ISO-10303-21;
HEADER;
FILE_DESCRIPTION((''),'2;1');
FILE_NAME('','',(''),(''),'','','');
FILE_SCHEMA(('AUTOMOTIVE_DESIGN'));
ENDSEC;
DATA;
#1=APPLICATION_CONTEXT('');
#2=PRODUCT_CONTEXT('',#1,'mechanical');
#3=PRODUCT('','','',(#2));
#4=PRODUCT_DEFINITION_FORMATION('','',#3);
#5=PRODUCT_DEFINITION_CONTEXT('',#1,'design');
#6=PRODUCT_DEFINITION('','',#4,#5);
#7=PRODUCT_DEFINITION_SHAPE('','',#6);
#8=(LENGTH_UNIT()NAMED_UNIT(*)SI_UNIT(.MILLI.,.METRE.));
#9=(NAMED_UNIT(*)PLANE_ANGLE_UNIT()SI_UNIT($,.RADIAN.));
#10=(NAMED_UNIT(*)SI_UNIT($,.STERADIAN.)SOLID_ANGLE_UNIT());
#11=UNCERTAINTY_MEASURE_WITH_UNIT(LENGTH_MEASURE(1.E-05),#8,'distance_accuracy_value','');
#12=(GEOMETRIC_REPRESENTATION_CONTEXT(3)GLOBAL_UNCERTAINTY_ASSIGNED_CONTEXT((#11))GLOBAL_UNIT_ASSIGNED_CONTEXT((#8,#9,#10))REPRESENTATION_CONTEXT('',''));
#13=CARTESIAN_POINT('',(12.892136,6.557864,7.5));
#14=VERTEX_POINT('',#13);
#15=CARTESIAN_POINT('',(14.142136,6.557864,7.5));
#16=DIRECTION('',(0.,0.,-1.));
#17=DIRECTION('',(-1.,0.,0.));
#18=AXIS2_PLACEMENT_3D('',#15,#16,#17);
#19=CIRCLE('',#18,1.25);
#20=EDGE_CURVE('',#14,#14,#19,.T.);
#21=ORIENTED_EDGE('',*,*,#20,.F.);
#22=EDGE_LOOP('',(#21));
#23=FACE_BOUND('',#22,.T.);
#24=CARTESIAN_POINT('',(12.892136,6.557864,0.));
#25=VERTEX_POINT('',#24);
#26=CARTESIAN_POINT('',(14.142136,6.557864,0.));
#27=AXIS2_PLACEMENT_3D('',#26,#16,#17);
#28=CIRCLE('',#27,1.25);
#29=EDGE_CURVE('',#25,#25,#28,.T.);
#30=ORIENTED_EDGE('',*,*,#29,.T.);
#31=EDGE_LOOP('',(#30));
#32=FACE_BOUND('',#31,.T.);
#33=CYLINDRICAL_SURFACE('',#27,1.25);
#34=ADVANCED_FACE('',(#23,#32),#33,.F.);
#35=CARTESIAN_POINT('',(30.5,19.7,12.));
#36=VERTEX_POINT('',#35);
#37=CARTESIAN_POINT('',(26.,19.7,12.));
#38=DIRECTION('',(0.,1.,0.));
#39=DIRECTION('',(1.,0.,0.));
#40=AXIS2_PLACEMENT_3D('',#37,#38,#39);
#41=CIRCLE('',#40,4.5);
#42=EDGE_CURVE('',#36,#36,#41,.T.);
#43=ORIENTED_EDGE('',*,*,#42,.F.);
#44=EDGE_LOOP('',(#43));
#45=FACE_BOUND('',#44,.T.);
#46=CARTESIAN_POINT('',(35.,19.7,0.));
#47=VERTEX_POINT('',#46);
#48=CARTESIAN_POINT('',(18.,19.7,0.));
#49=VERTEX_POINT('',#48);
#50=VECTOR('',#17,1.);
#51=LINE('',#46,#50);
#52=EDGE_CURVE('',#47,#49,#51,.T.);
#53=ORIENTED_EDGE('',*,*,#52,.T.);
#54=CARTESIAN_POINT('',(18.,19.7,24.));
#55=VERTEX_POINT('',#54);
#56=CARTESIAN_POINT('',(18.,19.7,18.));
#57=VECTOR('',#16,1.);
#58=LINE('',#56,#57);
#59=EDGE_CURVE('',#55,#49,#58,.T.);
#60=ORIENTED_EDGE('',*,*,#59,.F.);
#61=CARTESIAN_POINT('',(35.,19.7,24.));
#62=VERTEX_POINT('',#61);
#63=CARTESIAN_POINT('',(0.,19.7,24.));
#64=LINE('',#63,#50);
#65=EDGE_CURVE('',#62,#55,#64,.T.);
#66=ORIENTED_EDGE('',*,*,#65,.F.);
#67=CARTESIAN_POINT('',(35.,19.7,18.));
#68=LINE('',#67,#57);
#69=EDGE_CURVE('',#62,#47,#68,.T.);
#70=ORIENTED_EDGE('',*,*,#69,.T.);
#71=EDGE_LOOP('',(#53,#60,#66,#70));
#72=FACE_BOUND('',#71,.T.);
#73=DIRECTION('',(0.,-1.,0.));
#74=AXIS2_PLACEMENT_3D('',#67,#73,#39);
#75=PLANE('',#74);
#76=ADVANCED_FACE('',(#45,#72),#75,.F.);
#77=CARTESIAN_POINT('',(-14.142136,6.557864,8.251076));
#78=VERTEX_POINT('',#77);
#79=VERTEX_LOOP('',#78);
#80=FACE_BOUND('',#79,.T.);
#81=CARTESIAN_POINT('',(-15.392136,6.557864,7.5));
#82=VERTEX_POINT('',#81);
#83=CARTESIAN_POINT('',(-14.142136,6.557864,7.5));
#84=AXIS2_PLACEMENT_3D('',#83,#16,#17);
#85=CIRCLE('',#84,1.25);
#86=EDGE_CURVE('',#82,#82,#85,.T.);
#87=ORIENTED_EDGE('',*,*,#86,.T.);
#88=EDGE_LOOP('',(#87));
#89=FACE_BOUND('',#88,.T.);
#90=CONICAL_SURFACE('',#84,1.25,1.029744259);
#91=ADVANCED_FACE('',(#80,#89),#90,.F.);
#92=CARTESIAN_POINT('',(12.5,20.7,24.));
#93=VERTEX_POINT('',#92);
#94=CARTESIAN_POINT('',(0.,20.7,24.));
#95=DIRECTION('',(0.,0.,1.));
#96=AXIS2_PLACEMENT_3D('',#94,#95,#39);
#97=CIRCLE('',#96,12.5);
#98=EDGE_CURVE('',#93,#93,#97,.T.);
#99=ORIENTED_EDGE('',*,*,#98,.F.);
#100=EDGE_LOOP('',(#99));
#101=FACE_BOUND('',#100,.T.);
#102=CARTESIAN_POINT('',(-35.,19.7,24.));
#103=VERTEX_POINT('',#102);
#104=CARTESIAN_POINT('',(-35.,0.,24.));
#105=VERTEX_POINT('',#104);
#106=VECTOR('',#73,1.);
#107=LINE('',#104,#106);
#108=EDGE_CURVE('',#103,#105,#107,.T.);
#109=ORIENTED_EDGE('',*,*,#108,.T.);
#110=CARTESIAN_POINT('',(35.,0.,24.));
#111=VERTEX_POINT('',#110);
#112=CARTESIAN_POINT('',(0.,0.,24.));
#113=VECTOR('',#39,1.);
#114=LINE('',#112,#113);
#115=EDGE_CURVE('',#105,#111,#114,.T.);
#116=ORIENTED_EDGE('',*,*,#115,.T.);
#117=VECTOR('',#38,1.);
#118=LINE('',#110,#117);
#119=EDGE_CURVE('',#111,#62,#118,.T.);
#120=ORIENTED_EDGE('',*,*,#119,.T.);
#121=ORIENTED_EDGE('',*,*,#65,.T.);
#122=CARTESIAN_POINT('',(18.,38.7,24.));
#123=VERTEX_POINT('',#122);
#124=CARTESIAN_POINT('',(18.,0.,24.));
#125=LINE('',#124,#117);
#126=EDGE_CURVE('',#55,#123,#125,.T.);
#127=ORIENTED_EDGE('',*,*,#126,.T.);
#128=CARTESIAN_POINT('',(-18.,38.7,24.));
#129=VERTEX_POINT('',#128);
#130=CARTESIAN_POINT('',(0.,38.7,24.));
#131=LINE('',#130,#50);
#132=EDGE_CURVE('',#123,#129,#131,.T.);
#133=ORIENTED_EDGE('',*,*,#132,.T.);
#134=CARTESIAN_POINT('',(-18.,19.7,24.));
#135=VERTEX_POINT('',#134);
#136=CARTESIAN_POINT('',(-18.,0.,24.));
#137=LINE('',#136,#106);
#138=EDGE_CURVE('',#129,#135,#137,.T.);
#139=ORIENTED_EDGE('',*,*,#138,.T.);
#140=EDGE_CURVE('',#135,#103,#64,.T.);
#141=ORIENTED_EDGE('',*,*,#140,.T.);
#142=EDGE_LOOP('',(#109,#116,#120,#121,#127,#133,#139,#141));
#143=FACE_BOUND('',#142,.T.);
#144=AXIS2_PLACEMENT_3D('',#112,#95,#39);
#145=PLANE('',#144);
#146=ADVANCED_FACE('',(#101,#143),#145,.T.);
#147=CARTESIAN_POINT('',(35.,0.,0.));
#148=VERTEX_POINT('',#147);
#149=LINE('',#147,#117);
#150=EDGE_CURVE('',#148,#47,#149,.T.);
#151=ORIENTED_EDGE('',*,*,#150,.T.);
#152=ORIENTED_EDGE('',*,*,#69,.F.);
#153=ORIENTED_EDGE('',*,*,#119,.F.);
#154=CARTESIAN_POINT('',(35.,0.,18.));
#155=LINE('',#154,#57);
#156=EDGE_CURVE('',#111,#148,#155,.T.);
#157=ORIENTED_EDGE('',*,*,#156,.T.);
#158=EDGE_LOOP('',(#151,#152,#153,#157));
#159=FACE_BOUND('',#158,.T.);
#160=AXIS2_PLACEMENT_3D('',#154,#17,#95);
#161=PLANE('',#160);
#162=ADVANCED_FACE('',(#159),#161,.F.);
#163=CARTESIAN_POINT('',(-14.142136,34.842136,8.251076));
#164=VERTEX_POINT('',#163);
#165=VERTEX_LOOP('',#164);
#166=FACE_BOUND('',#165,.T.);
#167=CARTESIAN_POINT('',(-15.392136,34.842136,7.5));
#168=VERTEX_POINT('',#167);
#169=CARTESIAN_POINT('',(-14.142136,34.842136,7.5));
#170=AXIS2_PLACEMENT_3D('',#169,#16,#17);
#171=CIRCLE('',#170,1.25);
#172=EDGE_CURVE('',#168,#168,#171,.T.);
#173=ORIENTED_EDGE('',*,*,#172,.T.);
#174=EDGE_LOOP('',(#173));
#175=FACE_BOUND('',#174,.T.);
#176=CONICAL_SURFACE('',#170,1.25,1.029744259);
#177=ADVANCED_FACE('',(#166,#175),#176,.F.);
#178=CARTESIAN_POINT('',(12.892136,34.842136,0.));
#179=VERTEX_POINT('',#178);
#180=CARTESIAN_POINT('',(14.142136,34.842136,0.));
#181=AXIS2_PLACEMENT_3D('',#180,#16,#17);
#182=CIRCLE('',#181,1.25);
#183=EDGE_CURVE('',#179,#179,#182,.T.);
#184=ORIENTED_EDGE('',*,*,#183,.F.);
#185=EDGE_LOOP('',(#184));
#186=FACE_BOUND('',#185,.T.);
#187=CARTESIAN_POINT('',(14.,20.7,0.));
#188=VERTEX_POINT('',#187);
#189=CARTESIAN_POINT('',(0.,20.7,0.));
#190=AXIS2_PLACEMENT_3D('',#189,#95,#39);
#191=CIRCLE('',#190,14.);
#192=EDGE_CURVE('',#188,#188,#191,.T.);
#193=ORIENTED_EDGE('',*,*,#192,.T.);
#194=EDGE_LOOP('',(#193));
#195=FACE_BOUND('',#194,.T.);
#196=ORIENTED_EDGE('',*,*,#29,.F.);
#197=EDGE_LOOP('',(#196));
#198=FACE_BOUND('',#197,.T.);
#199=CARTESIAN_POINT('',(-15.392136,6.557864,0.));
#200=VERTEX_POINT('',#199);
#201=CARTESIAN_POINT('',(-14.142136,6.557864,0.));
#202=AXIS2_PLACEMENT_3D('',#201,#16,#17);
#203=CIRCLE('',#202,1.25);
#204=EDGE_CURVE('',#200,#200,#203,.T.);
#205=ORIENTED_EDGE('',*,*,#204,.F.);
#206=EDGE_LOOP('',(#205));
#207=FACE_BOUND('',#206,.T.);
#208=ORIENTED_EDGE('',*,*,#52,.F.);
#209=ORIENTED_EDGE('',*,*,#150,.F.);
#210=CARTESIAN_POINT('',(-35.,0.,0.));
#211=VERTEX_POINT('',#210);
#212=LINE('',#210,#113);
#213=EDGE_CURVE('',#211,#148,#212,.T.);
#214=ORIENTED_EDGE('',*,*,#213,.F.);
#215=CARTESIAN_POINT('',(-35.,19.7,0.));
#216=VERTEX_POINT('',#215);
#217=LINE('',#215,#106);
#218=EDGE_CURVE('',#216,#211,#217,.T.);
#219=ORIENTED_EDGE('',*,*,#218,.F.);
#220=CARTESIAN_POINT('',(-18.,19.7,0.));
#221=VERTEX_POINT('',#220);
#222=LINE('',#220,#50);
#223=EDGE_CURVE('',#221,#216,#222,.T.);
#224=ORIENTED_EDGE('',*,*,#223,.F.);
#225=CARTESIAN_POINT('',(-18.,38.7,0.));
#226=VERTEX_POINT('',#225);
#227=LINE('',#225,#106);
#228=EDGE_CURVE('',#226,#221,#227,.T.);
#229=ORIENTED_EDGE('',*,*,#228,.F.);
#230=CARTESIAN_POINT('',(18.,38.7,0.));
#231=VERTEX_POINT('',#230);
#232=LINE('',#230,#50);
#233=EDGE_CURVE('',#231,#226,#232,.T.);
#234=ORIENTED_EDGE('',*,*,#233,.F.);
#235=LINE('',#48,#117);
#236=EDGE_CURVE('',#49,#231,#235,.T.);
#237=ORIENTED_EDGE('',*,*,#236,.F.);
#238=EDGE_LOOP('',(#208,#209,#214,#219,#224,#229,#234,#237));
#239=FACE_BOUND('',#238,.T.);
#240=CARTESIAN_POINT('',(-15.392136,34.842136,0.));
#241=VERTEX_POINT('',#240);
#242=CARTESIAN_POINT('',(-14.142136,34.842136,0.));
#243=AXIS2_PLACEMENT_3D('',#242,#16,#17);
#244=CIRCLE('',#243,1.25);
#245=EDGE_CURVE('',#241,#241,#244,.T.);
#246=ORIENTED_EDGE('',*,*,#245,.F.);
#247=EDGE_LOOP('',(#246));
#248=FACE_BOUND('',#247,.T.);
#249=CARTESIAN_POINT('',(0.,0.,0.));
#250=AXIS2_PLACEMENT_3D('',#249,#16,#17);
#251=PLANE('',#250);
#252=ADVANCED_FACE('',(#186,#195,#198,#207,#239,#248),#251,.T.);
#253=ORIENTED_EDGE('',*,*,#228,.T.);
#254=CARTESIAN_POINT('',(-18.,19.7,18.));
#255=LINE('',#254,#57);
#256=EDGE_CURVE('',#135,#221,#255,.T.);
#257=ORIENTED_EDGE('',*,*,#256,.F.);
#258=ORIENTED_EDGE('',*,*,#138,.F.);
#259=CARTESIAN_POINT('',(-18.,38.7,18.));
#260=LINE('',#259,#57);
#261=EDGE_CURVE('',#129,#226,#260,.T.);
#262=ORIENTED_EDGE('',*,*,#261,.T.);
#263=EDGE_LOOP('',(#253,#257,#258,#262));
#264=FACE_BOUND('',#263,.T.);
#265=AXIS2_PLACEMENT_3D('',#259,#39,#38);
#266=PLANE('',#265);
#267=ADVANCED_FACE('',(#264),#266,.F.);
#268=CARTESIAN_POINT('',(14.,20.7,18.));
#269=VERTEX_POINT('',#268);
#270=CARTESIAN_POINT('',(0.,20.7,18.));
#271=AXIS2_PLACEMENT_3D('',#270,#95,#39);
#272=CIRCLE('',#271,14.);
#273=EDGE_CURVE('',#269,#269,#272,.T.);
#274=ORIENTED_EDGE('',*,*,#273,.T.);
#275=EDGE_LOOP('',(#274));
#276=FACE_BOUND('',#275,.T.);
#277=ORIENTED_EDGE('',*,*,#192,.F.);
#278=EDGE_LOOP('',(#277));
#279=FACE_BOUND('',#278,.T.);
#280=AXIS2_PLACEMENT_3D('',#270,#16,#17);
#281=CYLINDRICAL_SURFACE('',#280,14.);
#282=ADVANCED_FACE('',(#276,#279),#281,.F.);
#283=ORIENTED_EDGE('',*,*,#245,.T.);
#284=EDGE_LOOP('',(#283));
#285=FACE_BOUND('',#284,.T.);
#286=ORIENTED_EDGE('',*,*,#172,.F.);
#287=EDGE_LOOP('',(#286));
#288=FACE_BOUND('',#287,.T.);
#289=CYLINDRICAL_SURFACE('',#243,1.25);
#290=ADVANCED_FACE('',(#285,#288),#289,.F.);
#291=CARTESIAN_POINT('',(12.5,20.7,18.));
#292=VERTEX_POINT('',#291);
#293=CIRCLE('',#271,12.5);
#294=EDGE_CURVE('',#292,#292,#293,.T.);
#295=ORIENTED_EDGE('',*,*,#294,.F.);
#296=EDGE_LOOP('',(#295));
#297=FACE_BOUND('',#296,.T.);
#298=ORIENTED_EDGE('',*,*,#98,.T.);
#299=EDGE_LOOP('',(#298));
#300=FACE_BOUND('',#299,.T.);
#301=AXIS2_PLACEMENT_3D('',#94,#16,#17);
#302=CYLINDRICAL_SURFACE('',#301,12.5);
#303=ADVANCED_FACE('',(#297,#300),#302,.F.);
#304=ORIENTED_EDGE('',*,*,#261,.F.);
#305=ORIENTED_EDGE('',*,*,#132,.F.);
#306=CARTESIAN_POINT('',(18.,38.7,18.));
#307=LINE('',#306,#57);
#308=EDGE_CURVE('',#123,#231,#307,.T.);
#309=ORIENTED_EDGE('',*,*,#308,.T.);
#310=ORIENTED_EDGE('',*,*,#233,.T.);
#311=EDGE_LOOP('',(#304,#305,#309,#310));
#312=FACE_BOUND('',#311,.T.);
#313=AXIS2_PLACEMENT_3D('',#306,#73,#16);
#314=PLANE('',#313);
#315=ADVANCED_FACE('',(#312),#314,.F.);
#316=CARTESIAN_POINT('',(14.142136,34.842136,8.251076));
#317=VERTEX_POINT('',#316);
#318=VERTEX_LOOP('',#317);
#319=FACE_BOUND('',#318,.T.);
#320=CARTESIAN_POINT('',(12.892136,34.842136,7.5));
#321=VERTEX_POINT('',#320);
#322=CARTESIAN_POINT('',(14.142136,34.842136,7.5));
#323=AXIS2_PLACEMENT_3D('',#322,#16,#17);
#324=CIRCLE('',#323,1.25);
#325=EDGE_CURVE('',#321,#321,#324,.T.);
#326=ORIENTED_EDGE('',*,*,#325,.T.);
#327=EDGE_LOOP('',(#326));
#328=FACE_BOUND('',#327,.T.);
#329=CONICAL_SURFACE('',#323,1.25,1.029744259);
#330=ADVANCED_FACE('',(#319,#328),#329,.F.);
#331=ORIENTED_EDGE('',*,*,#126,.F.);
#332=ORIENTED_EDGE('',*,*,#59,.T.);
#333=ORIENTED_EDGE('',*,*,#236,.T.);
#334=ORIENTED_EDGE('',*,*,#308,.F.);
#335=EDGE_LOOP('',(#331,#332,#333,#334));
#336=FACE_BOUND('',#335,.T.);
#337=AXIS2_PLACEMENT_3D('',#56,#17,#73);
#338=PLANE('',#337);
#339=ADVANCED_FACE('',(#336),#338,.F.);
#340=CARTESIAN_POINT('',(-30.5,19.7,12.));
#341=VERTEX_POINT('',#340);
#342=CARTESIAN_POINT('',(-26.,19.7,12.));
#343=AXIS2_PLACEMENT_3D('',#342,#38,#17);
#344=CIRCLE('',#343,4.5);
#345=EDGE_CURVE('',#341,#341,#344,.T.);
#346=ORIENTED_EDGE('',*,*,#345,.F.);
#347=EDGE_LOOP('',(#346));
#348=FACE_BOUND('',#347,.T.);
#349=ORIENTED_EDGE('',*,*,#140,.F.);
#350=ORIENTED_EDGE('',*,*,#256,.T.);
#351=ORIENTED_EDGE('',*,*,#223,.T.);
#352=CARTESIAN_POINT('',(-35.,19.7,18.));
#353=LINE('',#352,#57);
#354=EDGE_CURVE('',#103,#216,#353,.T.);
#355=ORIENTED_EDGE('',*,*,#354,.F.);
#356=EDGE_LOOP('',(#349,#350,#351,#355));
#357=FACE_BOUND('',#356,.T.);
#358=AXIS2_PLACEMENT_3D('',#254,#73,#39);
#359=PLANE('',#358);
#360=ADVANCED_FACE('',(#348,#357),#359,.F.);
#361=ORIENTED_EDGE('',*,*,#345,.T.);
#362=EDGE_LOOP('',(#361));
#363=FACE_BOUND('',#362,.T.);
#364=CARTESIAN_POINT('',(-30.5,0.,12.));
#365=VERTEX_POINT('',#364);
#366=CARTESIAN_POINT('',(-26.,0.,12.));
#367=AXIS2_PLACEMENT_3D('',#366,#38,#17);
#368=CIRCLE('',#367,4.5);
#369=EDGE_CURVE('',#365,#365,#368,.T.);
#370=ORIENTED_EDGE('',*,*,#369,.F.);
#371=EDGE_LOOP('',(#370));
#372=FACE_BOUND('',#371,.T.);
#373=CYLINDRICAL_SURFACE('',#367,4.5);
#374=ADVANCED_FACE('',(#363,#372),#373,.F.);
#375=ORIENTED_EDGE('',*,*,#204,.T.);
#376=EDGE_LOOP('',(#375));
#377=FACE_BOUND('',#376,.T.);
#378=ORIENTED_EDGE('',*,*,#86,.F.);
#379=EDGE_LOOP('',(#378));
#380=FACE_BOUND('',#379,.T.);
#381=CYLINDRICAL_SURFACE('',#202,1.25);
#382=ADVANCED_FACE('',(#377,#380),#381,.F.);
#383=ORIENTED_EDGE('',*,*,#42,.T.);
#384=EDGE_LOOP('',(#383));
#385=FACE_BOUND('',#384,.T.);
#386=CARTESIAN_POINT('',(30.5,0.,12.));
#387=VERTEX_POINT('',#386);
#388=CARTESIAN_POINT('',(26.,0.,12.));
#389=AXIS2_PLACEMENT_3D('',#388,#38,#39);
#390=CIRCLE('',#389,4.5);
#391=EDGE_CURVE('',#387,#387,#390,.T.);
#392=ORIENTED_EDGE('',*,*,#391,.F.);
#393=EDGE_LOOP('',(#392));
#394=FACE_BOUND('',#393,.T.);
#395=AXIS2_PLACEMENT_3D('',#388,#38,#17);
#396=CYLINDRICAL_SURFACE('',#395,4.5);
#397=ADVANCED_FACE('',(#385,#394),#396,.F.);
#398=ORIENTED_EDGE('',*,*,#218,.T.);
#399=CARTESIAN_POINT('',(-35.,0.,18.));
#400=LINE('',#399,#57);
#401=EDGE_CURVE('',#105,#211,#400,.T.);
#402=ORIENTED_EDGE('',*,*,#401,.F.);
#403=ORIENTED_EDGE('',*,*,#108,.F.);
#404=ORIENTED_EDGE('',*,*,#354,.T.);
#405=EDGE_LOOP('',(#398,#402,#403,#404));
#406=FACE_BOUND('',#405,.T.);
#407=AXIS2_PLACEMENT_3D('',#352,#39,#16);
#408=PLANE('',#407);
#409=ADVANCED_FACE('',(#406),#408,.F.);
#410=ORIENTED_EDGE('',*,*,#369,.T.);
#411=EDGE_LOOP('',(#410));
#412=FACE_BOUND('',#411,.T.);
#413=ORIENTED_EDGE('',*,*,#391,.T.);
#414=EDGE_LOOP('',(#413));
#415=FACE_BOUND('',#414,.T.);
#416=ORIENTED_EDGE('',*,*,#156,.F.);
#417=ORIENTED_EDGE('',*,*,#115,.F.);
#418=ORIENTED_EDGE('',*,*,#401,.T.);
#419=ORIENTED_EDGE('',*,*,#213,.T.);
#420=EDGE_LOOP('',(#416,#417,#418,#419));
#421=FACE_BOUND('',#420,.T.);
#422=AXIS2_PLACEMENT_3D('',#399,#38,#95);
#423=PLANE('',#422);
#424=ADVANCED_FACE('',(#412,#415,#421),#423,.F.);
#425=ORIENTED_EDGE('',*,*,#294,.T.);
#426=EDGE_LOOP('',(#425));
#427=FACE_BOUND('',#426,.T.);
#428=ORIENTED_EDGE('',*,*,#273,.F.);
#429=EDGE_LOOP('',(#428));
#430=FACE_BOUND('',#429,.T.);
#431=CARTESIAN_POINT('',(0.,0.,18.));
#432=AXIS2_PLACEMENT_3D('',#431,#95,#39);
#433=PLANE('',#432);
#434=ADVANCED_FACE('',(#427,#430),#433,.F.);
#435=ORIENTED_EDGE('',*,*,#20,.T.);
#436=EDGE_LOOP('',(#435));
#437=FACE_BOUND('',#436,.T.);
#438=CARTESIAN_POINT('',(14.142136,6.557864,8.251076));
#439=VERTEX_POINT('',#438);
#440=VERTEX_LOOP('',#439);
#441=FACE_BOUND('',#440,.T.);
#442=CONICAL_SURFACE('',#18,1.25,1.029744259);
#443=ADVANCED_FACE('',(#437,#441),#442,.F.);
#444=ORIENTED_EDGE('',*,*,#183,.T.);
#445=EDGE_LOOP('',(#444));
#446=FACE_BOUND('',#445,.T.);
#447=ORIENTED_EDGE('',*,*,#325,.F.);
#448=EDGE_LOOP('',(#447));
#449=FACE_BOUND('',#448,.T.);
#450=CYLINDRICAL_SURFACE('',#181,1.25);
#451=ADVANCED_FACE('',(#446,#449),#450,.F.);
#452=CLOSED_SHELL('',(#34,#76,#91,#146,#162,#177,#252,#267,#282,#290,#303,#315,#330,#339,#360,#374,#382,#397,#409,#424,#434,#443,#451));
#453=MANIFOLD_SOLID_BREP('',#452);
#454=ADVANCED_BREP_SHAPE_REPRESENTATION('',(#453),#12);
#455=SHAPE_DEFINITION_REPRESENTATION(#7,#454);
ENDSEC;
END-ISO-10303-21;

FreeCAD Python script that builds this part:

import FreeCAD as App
import Part
import Sketcher
from FreeCAD import Vector


def add_polygon(sketch, points):
    """Adds a closed chain of lines whose ends are joined by coincident constraints."""
    first, n = sketch.GeometryCount, len(points)
    for a, b in zip(points, points[1:] + points[:1]):
        sketch.addGeometry(Part.LineSegment(App.Vector(*a, 0), App.Vector(*b, 0)), False)
    for i in range(n):
        sketch.addConstraint(Sketcher.Constraint("Coincident", first + i, 2, first + (i + 1) % n, 1))

doc = App.newDocument("Part")
body = doc.addObject("PartDesign::Body", "Body")

sketch1 = body.newObject("Sketcher::SketchObject", "Sketch")
sketch1.AttachmentSupport = (doc.getObject("XY_Plane"), [""])
sketch1.MapMode = "FlatFace"
add_polygon(sketch1, [(-35, 0), (35, 0), (35, 19.7), (18, 19.7), (18, 38.7), (-18, 38.7), (-18, 19.7), (-35, 19.7)])
sketch1.addGeometry(Part.Circle(Vector(0, 20.7, 0), Vector(0, 0, 1), 14), False)
sketch1.addConstraint(Sketcher.Constraint("Horizontal", 0))
sketch1.addConstraint(Sketcher.Constraint("Vertical", 1))
sketch1.addConstraint(Sketcher.Constraint("Horizontal", 2))
sketch1.addConstraint(Sketcher.Constraint("Vertical", 3))
sketch1.addConstraint(Sketcher.Constraint("Horizontal", 4))
sketch1.addConstraint(Sketcher.Constraint("Vertical", 5))
sketch1.addConstraint(Sketcher.Constraint("Horizontal", 6))
sketch1.addConstraint(Sketcher.Constraint("Vertical", 7))
sketch1.addConstraint(Sketcher.Constraint("Symmetric", 0, 2, 7, 2, -1, 1))
sketch1.addConstraint(Sketcher.Constraint("Symmetric", 2, 2, 5, 2, -2))
sketch1.addConstraint(Sketcher.Constraint("PointOnObject", 8, 3, -2))
sketch1.addConstraint(Sketcher.Constraint("Diameter", 8, 28.0))
sketch1.addConstraint(Sketcher.Constraint("DistanceX", 0, 1, 0, 2, 70.0))
sketch1.addConstraint(Sketcher.Constraint("DistanceX", 2, 2, 2, 1, 17.0))
sketch1.addConstraint(Sketcher.Constraint("DistanceY", 3, 1, 3, 2, 19.0))
sketch1.addConstraint(Sketcher.Constraint("DistanceY", 1, 1, 1, 2, 19.7))
sketch1.addConstraint(Sketcher.Constraint("DistanceY", 1, 2, 8, 3, 1.0))
pad1 = body.newObject("PartDesign::Pad", "Pad")
pad1.Profile = sketch1
pad1.Length = 18

sketch2 = body.newObject("Sketcher::SketchObject", "Sketch001")
sketch2.AttachmentSupport = (doc.getObject("XY_Plane"), [""])
sketch2.MapMode = "FlatFace"
sketch2.AttachmentOffset = App.Placement(Vector(0, 0, 18), App.Rotation())
add_polygon(sketch2, [(35, 0), (35, 19.7), (18, 19.7), (18, 38.7), (-18, 38.7), (-18, 19.7), (-35, 19.7), (-35, 0)])
sketch2.addGeometry(Part.Circle(Vector(0, 20.7, 0), Vector(0, 0, 1), 12.5), False)
sketch2.addConstraint(Sketcher.Constraint("Vertical", 0))
sketch2.addConstraint(Sketcher.Constraint("Horizontal", 1))
sketch2.addConstraint(Sketcher.Constraint("Vertical", 2))
sketch2.addConstraint(Sketcher.Constraint("Horizontal", 3))
sketch2.addConstraint(Sketcher.Constraint("Vertical", 4))
sketch2.addConstraint(Sketcher.Constraint("Horizontal", 5))
sketch2.addConstraint(Sketcher.Constraint("Vertical", 6))
sketch2.addConstraint(Sketcher.Constraint("Horizontal", 7))
sketch2.addConstraint(Sketcher.Constraint("Symmetric", 6, 2, 7, 2, -1, 1))
sketch2.addConstraint(Sketcher.Constraint("Symmetric", 1, 2, 4, 2, -2))
sketch2.addConstraint(Sketcher.Constraint("PointOnObject", 8, 3, -2))
sketch2.addConstraint(Sketcher.Constraint("Diameter", 8, 25.0))
sketch2.addConstraint(Sketcher.Constraint("DistanceX", 1, 2, 1, 1, 17.0))
sketch2.addConstraint(Sketcher.Constraint("DistanceX", 3, 2, 3, 1, 36.0))
sketch2.addConstraint(Sketcher.Constraint("DistanceY", 2, 1, 2, 2, 19.0))
sketch2.addConstraint(Sketcher.Constraint("DistanceY", 0, 1, 0, 2, 19.7))
sketch2.addConstraint(Sketcher.Constraint("DistanceY", 0, 2, 8, 3, 1.0))
pad2 = body.newObject("PartDesign::Pad", "Pad001")
pad2.Profile = sketch2
pad2.Length = 6

sketch3 = body.newObject("Sketcher::SketchObject", "Sketch002")
sketch3.AttachmentSupport = (doc.getObject("XZ_Plane"), [""])
sketch3.MapMode = "FlatFace"
sketch3.AttachmentOffset = App.Placement(Vector(0, 0, -19.7), App.Rotation())
sketch3.addGeometry(Part.Circle(Vector(-26, 12, 0), Vector(0, 0, 1), 4.5), False)
sketch3.addGeometry(Part.Circle(Vector(26, 12, 0), Vector(0, 0, 1), 4.5), False)
sketch3.addConstraint(Sketcher.Constraint("Equal", 0, 1))
sketch3.addConstraint(Sketcher.Constraint("Symmetric", 0, 3, 1, 3, -2))
sketch3.addConstraint(Sketcher.Constraint("Diameter", 0, 9.0))
sketch3.addConstraint(Sketcher.Constraint("DistanceX", 0, 3, -1, 1, 26.0))
sketch3.addConstraint(Sketcher.Constraint("DistanceY", -1, 1, 0, 3, 12.0))
pocket1 = body.newObject("PartDesign::Pocket", "Pocket")
pocket1.Profile = sketch3
pocket1.Type = "ThroughAll"
pocket1.Reversed = True

sketch4 = body.newObject("Sketcher::SketchObject", "Sketch003")
sketch4.AttachmentSupport = (doc.getObject("XY_Plane"), [""])
sketch4.MapMode = "FlatFace"
sketch4.addGeometry(Part.Circle(Vector(-14.142136, 34.842136, 0), Vector(0, 0, 1), 1.25), False)
sketch4.addGeometry(Part.Circle(Vector(-14.142136, 6.557864, 0), Vector(0, 0, 1), 1.25), False)
sketch4.addGeometry(Part.Circle(Vector(14.142136, 6.557864, 0), Vector(0, 0, 1), 1.25), False)
sketch4.addGeometry(Part.Circle(Vector(14.142136, 34.842136, 0), Vector(0, 0, 1), 1.25), False)
sketch4.addConstraint(Sketcher.Constraint("Equal", 0, 1))
sketch4.addConstraint(Sketcher.Constraint("Equal", 1, 2))
sketch4.addConstraint(Sketcher.Constraint("Equal", 2, 3))
sketch4.addConstraint(Sketcher.Constraint("Symmetric", 1, 3, 2, 3, -2))
sketch4.addConstraint(Sketcher.Constraint("Symmetric", 0, 3, 3, 3, -2))
sketch4.addConstraint(Sketcher.Constraint("Vertical", 0, 3, 1, 3))
sketch4.addConstraint(Sketcher.Constraint("Diameter", 0, 2.5))
sketch4.addConstraint(Sketcher.Constraint("DistanceY", 1, 3, 0, 3, 28.284271))
sketch4.addConstraint(Sketcher.Constraint("DistanceX", 1, 3, 2, 3, 28.284271))
sketch4.addConstraint(Sketcher.Constraint("DistanceY", -1, 1, 0, 3, 34.842136))
doc.recompute()
hole = body.newObject("PartDesign::Hole", "Hole")
hole.Profile = sketch4
hole.ThreadType = "None"
hole.Diameter = 2.5
hole.DepthType = "Dimension"
hole.Depth = 7.5
hole.DrillPoint = "Angled"
hole.DrillPointAngle = 118
hole.Reversed = True

doc.recompute()
